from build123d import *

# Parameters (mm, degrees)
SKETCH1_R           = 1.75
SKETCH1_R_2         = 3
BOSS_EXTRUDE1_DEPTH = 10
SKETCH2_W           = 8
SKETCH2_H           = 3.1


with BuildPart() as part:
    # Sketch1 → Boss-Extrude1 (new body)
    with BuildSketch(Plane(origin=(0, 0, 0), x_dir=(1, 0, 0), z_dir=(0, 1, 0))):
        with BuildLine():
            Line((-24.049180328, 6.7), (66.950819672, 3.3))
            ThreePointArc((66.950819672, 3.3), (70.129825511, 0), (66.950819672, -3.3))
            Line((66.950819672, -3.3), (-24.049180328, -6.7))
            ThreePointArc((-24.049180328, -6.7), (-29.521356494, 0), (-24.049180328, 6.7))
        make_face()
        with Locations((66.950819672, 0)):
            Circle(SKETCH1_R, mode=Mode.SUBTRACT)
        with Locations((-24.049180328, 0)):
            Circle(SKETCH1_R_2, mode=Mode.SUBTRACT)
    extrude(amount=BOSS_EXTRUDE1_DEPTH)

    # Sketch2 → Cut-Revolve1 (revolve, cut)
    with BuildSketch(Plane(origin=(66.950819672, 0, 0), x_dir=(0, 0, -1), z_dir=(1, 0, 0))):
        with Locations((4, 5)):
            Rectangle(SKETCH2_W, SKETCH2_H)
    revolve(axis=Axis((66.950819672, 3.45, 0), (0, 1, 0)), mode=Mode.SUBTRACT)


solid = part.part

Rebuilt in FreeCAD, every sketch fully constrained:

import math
import FreeCAD as App
import Part
import Sketcher

V = App.Vector

doc = App.newDocument("Part")
params = doc.addObject("Spreadsheet::Sheet", "Params")
for row, (alias, value) in enumerate([
    ("sketch1_diameter", "6 mm"),
    ("sketch1_diameter2", "3.5 mm"),
    ("pad1_length", "10 mm"),
    ("sketch2_height", "8 mm"),
    ("sketch2_width", "3.1 mm"),
    ("groove_angle", "360 deg"),
], start=1):
    params.set(f"A{row}", alias)
    params.set(f"B{row}", "=" + value)
    params.setAlias(f"B{row}", alias)

body = doc.addObject("PartDesign::Body", "Body")

# Sketch on XZ plane
sketch1 = body.newObject("Sketcher::SketchObject", "Sketch")
sketch1.AttachmentSupport = (doc.getObject("XZ_Plane"), [""])
sketch1.MapMode = "FlatFace"
sketch1.addGeometry([
    Part.LineSegment(V(67, -3.3, 0), V(-24, -6.7, 0)),  # 0
    Part.ArcOfCircle(Part.Circle(V(-22.7, 0, 0), V(0, 0, 1), 6.8), math.radians(102), math.radians(258)),  # 1
    Part.LineSegment(V(-24, 6.7, 0), V(67, 3.3, 0)),  # 2
    Part.ArcOfCircle(Part.Circle(V(66.8, 0, 0), V(0, 0, 1), 3.3), math.radians(-88), math.radians(88)),  # 3
    Part.Circle(V(67, 0, 0), V(0, 0, 1), 1.8),  # 4
    Part.Circle(V(-24, 0, 0), V(0, 0, 1), 3),  # 5
], False)
sketch1.addConstraint([
    Sketcher.Constraint("Coincident", 0, 2, 1, 2),
    Sketcher.Constraint("Coincident", 1, 1, 2, 1),
    Sketcher.Constraint("Tangent", 2, 2, 3, 2),
    Sketcher.Constraint("Tangent", 3, 1, 0, 1),
    Sketcher.Constraint("Symmetric", 0, 2, 1, 1, -1),
    Sketcher.Constraint("PointOnObject", 3, 3, -1),
    Sketcher.Constraint("PointOnObject", 4, 3, -1),
    Sketcher.Constraint("PointOnObject", 5, 3, -1),
    Sketcher.Constraint("Vertical", 5, 3, 0, 2),
    Sketcher.Constraint("Vertical", 4, 3, 2, 2),
    Sketcher.Constraint("Diameter", 5, 6.0),
    Sketcher.Constraint("Diameter", 4, 3.5),
    Sketcher.Constraint("DistanceX", 5, 3, 4, 3, 91.0),
    Sketcher.Constraint("DistanceY", 0, 2, -1, 1, 6.7),
    Sketcher.Constraint("DistanceY", -1, 1, 2, 2, 3.3),
    Sketcher.Constraint("Radius", 1, 6.837747),
    Sketcher.Constraint("DistanceX", 1, 3, -1, 1, 22.68361),
])
sketch1.setExpression("Constraints[10]", "Params.sketch1_diameter")
sketch1.setExpression("Constraints[11]", "Params.sketch1_diameter2")
pad1 = body.newObject("PartDesign::Pad", "Pad")
pad1.Profile = sketch1
pad1.setExpression("Length", "Params.pad1_length")
pad1.Reversed = True

# Sketch on YZ plane
sketch2 = body.newObject("Sketcher::SketchObject", "Sketch001")
sketch2.AttachmentSupport = (doc.getObject("YZ_Plane"), [""])
sketch2.MapMode = "FlatFace"
sketch2.AttachmentOffset = App.Placement(V(0, 0, 66.95082), App.Rotation())
sketch2.addGeometry([
    Part.LineSegment(V(6.5, 0, 0), V(3.5, 0, 0)),
    Part.LineSegment(V(3.5, 0, 0), V(3.5, -8, 0)),
    Part.LineSegment(V(3.5, -8, 0), V(6.5, -8, 0)),
    Part.LineSegment(V(6.5, -8, 0), V(6.5, 0, 0)),
], False)
sketch2.addConstraint([
    Sketcher.Constraint("Coincident", 0, 2, 1, 1),
    Sketcher.Constraint("Coincident", 1, 2, 2, 1),
    Sketcher.Constraint("Coincident", 2, 2, 3, 1),
    Sketcher.Constraint("Coincident", 3, 2, 0, 1),
    Sketcher.Constraint("Horizontal", 0),
    Sketcher.Constraint("Vertical", 1),
    Sketcher.Constraint("Horizontal", 2),
    Sketcher.Constraint("Vertical", 3),
    Sketcher.Constraint("PointOnObject", 0, 2, -1),
    Sketcher.Constraint("DistanceY", 1, 2, 1, 1, 8.0),
    Sketcher.Constraint("DistanceX", 0, 2, 0, 1, 3.1),
    Sketcher.Constraint("DistanceX", -1, 1, 0, 2, 3.45),
])
sketch2.setExpression("Constraints[9]", "Params.sketch2_height")
sketch2.setExpression("Constraints[10]", "Params.sketch2_width")
groove = body.newObject("PartDesign::Groove", "Groove")
groove.Profile = sketch2
groove.ReferenceAxis = (sketch2, ["H_Axis"])
groove.setExpression("Angle", "Params.groove_angle")

doc.recompute()
